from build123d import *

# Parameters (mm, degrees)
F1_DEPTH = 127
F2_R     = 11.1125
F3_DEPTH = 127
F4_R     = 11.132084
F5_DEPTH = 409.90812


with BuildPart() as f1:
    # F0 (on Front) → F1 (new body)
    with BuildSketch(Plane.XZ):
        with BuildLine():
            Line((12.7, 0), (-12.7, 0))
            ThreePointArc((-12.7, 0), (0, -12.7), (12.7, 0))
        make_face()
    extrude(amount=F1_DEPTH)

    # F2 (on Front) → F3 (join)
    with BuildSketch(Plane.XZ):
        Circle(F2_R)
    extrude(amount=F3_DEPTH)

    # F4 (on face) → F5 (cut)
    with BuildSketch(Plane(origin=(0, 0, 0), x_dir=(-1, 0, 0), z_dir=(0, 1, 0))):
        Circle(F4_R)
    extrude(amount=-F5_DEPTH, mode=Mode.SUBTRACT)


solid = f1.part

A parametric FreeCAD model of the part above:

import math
import FreeCAD as App
import Part
import Sketcher
Q = App.Units.Quantity

doc = App.newDocument("Part")
body = doc.addObject("PartDesign::Body", "Body")

# Sketch on XZ plane
sketch1 = doc.addObject("Sketcher::SketchObject", "Sketch")
body.addObject(sketch1)
sketch1.AttachmentSupport = (doc.XZ_Plane, [""])
sketch1.MapMode = "FlatFace"
sketch1.addGeometry([
    Part.LineSegment(App.Vector(12.7, 0, 0), App.Vector(-12.7, 0, 0)),
    Part.ArcOfCircle(Part.Circle(App.Vector(0, 0, 0), App.Vector(0, 0, 1), 12.7), math.radians(180), math.radians(360)),
], False)
sketch1.addConstraint([
    Sketcher.Constraint("Coincident", 0, 1, 1, 2),
    Sketcher.Constraint("Coincident", 1, 1, 0, 2),
    Sketcher.Constraint("Horizontal", 0),
    Sketcher.Constraint("Coincident", 1, 3, -1, 1),
    Sketcher.Constraint("PointOnObject", 0, 1, -1),
    Sketcher.Constraint("Radius", 1, Q("0.5 in")),
])
pad1 = doc.addObject("PartDesign::Pad", "Pad")
body.addObject(pad1)
pad1.Profile = sketch1
pad1.Length = Q("5 in")

# Sketch on XZ plane
sketch2 = doc.addObject("Sketcher::SketchObject", "Sketch001")
body.addObject(sketch2)
sketch2.AttachmentSupport = (doc.XZ_Plane, [""])
sketch2.MapMode = "FlatFace"
sketch2.addGeometry(Part.Circle(App.Vector(0, 0, 0), App.Vector(0, 0, 1), 11.1125), False)
sketch2.addConstraint([
    Sketcher.Constraint("Coincident", 0, 3, -1, 1),
    Sketcher.Constraint("Diameter", 0, Q("0.875 in")),
])
pad2 = doc.addObject("PartDesign::Pad", "Pad001")
body.addObject(pad2)
pad2.Profile = sketch2
pad2.Length = Q("5 in")

# Sketch on XZ plane
sketch3 = doc.addObject("Sketcher::SketchObject", "Sketch002")
body.addObject(sketch3)
sketch3.AttachmentSupport = (doc.XZ_Plane, [""])
sketch3.MapMode = "FlatFace"
sketch3.addGeometry(Part.Circle(App.Vector(0, 0, 0), App.Vector(0, 0, 1), 11.132084), False)
sketch3.addConstraint([
    Sketcher.Constraint("Coincident", 0, 3, -1, 1),
    Sketcher.Constraint("Diameter", 0, 22.264168),
])
pocket1 = doc.addObject("PartDesign::Pocket", "Pocket")
body.addObject(pocket1)
pocket1.Profile = sketch3
pocket1.Length = 409.90812
pocket1.Reversed = True

doc.recompute()
